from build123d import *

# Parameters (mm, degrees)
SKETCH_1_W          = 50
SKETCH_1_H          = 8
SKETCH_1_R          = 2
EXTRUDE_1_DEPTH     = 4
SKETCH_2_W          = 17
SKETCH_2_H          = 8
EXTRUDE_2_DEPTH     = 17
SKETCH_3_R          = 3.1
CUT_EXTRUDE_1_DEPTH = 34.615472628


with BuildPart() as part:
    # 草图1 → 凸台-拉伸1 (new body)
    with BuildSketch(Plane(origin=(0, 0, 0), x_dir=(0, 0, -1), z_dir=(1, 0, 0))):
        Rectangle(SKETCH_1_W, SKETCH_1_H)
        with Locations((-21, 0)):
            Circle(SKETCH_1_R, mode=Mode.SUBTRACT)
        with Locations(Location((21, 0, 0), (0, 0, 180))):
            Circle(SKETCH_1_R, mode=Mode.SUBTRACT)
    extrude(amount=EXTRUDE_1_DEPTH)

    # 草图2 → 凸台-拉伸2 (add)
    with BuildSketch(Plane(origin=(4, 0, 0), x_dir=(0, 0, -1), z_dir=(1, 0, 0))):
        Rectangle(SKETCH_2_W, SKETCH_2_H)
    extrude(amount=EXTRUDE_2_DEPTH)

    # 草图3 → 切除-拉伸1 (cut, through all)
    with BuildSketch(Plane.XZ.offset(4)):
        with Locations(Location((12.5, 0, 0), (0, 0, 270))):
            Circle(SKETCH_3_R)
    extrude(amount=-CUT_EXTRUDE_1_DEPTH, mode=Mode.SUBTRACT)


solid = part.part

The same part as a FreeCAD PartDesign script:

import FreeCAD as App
import Part
import Sketcher

V = App.Vector

doc = App.newDocument("Part")
body = doc.addObject("PartDesign::Body", "Body")

# Sketch on YZ plane
sketch1 = doc.addObject("Sketcher::SketchObject", "Sketch")
body.addObject(sketch1)
sketch1.AttachmentSupport = (doc.YZ_Plane, [""])
sketch1.MapMode = "FlatFace"
sketch1.addGeometry(Part.LineSegment(V(4, 25, 0), V(-4, 25, 0)), False)
sketch1.addGeometry(Part.LineSegment(V(-4, 25, 0), V(-4, -25, 0)), False)
sketch1.addGeometry(Part.LineSegment(V(-4, -25, 0), V(4, -25, 0)), False)
sketch1.addGeometry(Part.LineSegment(V(4, -25, 0), V(4, 25, 0)), False)
sketch1.addGeometry(Part.Circle(V(0, 21, 0), V(0, 0, 1), 2), False)
sketch1.addGeometry(Part.Circle(V(0, -21, 0), V(0, 0, 1), 2), False)
sketch1.addConstraint(Sketcher.Constraint("Coincident", 0, 2, 1, 1))
sketch1.addConstraint(Sketcher.Constraint("Coincident", 1, 2, 2, 1))
sketch1.addConstraint(Sketcher.Constraint("Coincident", 2, 2, 3, 1))
sketch1.addConstraint(Sketcher.Constraint("Coincident", 3, 2, 0, 1))
sketch1.addConstraint(Sketcher.Constraint("Horizontal", 0))
sketch1.addConstraint(Sketcher.Constraint("Vertical", 1))
sketch1.addConstraint(Sketcher.Constraint("Horizontal", 2))
sketch1.addConstraint(Sketcher.Constraint("Vertical", 3))
sketch1.addConstraint(Sketcher.Constraint("Equal", 4, 5))
sketch1.addConstraint(Sketcher.Constraint("Symmetric", 4, 3, 5, 3, -1, 1))
sketch1.addConstraint(Sketcher.Constraint("Symmetric", 0, 2, 2, 2, -1, 1))
sketch1.addConstraint(Sketcher.Constraint("PointOnObject", 4, 3, -2))
sketch1.addConstraint(Sketcher.Constraint("Diameter", 4, 4.0))
sketch1.addConstraint(Sketcher.Constraint("DistanceX", 0, 2, 0, 1, 8.0))
sketch1.addConstraint(Sketcher.Constraint("DistanceY", 1, 2, 1, 1, 50.0))
sketch1.addConstraint(Sketcher.Constraint("DistanceY", -1, 1, 4, 3, 21.0))
pad1 = doc.addObject("PartDesign::Pad", "Pad")
body.addObject(pad1)
pad1.Profile = sketch1
pad1.Length = 4

# Sketch on YZ plane
sketch2 = doc.addObject("Sketcher::SketchObject", "Sketch001")
body.addObject(sketch2)
sketch2.AttachmentSupport = (doc.YZ_Plane, [""])
sketch2.MapMode = "FlatFace"
sketch2.AttachmentOffset = App.Placement(V(0, 0, 4), App.Rotation())
sketch2.addGeometry(Part.LineSegment(V(4, 8.5, 0), V(-4, 8.5, 0)), False)
sketch2.addGeometry(Part.LineSegment(V(-4, 8.5, 0), V(-4, -8.5, 0)), False)
sketch2.addGeometry(Part.LineSegment(V(-4, -8.5, 0), V(4, -8.5, 0)), False)
sketch2.addGeometry(Part.LineSegment(V(4, -8.5, 0), V(4, 8.5, 0)), False)
sketch2.addConstraint(Sketcher.Constraint("Coincident", 0, 2, 1, 1))
sketch2.addConstraint(Sketcher.Constraint("Coincident", 1, 2, 2, 1))
sketch2.addConstraint(Sketcher.Constraint("Coincident", 2, 2, 3, 1))
sketch2.addConstraint(Sketcher.Constraint("Coincident", 3, 2, 0, 1))
sketch2.addConstraint(Sketcher.Constraint("Horizontal", 0))
sketch2.addConstraint(Sketcher.Constraint("Vertical", 1))
sketch2.addConstraint(Sketcher.Constraint("Horizontal", 2))
sketch2.addConstraint(Sketcher.Constraint("Vertical", 3))
sketch2.addConstraint(Sketcher.Constraint("Symmetric", 0, 2, 2, 2, -1, 1))
sketch2.addConstraint(Sketcher.Constraint("DistanceX", 0, 2, 0, 1, 8.0))
sketch2.addConstraint(Sketcher.Constraint("DistanceY", 1, 2, 1, 1, 17.0))
pad2 = doc.addObject("PartDesign::Pad", "Pad001")
body.addObject(pad2)
pad2.Profile = sketch2
pad2.Length = 17

# Sketch on XZ plane
sketch3 = doc.addObject("Sketcher::SketchObject", "Sketch002")
body.addObject(sketch3)
sketch3.AttachmentSupport = (doc.XZ_Plane, [""])
sketch3.MapMode = "FlatFace"
sketch3.AttachmentOffset = App.Placement(V(0, 0, 4), App.Rotation())
sketch3.addGeometry(Part.Circle(V(12.5, 0, 0), V(0, 0, 1), 3.1), False)
sketch3.addConstraint(Sketcher.Constraint("PointOnObject", 0, 3, -1))
sketch3.addConstraint(Sketcher.Constraint("Diameter", 0, 6.2))
sketch3.addConstraint(Sketcher.Constraint("DistanceX", -1, 1, 0, 3, 12.5))
pocket1 = doc.addObject("PartDesign::Pocket", "Pocket")
body.addObject(pocket1)
pocket1.Profile = sketch3
pocket1.Type = "ThroughAll"

doc.recompute()
